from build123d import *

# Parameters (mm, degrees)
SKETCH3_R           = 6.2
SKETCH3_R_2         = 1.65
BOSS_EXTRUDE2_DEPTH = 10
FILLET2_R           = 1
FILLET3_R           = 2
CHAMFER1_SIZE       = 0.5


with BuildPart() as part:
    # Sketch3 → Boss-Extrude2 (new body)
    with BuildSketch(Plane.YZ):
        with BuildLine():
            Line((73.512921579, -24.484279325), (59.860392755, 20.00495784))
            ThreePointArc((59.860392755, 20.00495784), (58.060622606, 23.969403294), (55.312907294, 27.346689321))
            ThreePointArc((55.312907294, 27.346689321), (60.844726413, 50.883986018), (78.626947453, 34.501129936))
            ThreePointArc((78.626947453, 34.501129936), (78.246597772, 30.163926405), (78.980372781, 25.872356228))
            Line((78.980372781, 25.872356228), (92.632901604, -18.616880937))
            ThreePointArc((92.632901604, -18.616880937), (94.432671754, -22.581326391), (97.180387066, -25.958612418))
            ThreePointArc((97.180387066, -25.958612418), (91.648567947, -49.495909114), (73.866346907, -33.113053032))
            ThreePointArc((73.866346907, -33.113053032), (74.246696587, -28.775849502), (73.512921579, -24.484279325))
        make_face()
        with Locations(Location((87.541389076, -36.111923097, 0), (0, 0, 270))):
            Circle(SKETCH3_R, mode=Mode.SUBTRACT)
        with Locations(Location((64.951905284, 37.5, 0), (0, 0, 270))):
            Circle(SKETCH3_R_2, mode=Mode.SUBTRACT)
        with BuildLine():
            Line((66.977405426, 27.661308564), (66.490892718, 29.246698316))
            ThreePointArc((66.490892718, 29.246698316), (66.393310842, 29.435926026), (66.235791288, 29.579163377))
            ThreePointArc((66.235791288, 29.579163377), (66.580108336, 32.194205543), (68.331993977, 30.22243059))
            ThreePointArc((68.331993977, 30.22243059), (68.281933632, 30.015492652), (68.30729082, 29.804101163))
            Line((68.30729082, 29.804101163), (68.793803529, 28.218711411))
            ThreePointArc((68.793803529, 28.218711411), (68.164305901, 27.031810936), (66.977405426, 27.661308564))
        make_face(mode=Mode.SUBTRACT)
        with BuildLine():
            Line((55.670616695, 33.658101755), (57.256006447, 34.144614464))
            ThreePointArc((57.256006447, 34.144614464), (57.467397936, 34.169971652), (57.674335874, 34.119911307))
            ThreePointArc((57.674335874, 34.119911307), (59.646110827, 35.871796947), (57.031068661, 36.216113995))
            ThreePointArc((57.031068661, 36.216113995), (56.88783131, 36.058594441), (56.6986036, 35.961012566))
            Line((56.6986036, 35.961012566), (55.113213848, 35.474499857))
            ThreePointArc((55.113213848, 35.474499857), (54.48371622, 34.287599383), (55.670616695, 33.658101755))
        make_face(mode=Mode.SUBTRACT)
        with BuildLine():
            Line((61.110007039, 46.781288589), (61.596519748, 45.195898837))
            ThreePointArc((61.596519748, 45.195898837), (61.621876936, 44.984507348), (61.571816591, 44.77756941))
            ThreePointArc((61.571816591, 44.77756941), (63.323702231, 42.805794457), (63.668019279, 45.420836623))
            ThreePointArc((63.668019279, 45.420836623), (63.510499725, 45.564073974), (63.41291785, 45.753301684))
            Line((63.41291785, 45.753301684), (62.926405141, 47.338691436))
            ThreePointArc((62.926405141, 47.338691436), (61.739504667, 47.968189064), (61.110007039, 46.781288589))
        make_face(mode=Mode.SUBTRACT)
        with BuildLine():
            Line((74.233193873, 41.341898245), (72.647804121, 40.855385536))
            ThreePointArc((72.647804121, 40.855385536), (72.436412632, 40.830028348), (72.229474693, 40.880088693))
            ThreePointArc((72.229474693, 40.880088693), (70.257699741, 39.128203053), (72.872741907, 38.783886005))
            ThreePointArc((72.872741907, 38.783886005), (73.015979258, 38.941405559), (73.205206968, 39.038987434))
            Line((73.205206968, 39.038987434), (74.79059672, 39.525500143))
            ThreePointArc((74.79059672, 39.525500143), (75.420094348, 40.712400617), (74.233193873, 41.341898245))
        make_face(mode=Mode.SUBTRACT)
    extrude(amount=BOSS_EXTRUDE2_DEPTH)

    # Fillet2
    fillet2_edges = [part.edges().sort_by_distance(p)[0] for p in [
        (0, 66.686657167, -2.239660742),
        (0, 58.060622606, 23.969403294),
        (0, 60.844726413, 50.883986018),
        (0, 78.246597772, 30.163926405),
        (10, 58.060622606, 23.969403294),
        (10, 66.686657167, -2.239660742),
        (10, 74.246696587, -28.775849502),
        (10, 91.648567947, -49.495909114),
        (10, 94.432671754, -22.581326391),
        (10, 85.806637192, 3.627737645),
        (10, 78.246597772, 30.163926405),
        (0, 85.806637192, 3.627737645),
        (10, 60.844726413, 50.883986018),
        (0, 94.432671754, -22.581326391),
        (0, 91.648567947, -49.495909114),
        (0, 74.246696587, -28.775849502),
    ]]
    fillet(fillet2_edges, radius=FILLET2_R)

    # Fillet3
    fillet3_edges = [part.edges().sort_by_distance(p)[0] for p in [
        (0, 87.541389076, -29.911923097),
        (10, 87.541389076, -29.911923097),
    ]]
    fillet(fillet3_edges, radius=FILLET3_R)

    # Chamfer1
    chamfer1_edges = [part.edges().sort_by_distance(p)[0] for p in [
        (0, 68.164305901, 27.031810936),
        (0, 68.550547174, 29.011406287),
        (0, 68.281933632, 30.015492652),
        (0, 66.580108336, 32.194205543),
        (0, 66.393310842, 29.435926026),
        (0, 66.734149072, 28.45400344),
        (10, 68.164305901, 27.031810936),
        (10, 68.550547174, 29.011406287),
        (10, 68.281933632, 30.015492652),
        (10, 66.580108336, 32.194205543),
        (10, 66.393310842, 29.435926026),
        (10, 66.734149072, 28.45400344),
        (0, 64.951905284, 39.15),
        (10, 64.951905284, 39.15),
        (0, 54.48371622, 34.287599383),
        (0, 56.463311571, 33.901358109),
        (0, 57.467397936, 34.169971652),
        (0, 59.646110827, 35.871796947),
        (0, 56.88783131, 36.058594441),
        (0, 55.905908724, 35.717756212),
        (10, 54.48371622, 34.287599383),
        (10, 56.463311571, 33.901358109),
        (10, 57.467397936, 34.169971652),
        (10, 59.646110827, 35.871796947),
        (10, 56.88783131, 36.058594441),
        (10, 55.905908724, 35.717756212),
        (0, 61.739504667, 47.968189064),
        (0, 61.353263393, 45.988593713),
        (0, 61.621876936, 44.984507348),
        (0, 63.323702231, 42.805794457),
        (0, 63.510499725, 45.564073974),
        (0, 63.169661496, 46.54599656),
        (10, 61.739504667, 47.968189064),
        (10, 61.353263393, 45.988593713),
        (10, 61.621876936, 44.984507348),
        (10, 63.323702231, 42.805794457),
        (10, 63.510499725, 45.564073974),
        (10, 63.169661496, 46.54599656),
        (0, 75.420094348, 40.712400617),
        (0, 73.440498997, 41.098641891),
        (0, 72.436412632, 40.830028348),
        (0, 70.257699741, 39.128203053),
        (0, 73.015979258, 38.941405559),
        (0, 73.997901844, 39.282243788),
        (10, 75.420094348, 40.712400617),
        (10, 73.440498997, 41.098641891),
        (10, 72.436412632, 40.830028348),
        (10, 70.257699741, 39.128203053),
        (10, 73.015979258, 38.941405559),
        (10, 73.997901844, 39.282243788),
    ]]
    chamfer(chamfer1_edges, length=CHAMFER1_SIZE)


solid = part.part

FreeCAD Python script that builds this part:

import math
import FreeCAD as App
import Part
import Sketcher
Q = App.Units.Quantity


def edges_at(feature, points):
    """Names of the edges that pass closest to the given points."""
    edges = feature.Shape.Edges
    near = lambda p: min(range(len(edges)), key=lambda i: edges[i].distToShape(Part.Vertex(*p))[0])
    return sorted({f"Edge{near(p) + 1}" for p in points})

doc = App.newDocument("Part")
params = doc.addObject("Spreadsheet::Sheet", "Params")
for row, (alias, value) in enumerate([
    ("sketch1_radius", "17 mm"),
    ("sketch1_radius2", "14 mm"),
    ("sketch1_diameter", "12.4 mm"),
    ("sketch1_diameter2", "3.3 mm"),
    ("sketch1_radius3", "0.6 mm"),
    ("pad1_length", "10 mm"),
    ("fillet_radius", "1 mm"),
    ("fillet2_radius", "2 mm"),
    ("chamfer_size", "0.5 mm"),
], start=1):
    params.set(f"A{row}", alias)
    params.set(f"B{row}", "=" + value)
    params.setAlias(f"B{row}", alias)

body = doc.addObject("PartDesign::Body", "Body")

# Sketch on YZ plane
sketch1 = doc.addObject("Sketcher::SketchObject", "Sketch")
body.addObject(sketch1)
sketch1.AttachmentSupport = (doc.YZ_Plane, [""])
sketch1.MapMode = "FlatFace"
sketch1.addGeometry(Part.LineSegment(App.Vector(59.860393, 20.004958, 0), App.Vector(73.512922, -24.484279, 0)), False)
sketch1.addGeometry(Part.ArcOfCircle(Part.Circle(App.Vector(57.260939, -29.471568, 0), App.Vector(0, 0, 1), 17), math.radians(-12.368891), math.radians(17.059816)), False)
sketch1.addGeometry(Part.ArcOfCircle(Part.Circle(App.Vector(87.541389, -36.111923, 0), App.Vector(0, 0, 1), 14), math.radians(167.631109), math.radians(406.488523)), False)
sketch1.addGeometry(Part.ArcOfCircle(Part.Circle(App.Vector(108.884885, -13.629592, 0), App.Vector(0, 0, 1), 17), math.radians(-162.940184), math.radians(-133.511477)), False)
sketch1.addGeometry(Part.LineSegment(App.Vector(92.632902, -18.616881, 0), App.Vector(78.980373, 25.872356, 0)), False)
sketch1.addGeometry(Part.ArcOfCircle(Part.Circle(App.Vector(95.232356, 30.859645, 0), App.Vector(0, 0, 1), 17), math.radians(167.631109), math.radians(197.059816)), False)
sketch1.addGeometry(Part.ArcOfCircle(Part.Circle(App.Vector(64.951905, 37.5, 0), App.Vector(0, 0, 1), 14), math.radians(-12.368891), math.radians(226.488523)), False)
sketch1.addGeometry(Part.ArcOfCircle(Part.Circle(App.Vector(43.60841, 15.017669, 0), App.Vector(0, 0, 1), 17), math.radians(17.059816), math.radians(46.488523)), False)
sketch1.addGeometry(Part.Circle(App.Vector(87.541389, -36.111923, 0), App.Vector(0, 0, 1), 6.2), False)
sketch1.addGeometry(Part.LineSegment(App.Vector(66.977405, 27.661309, 0), App.Vector(66.490893, 29.246698, 0)), False)
sketch1.addGeometry(Part.ArcOfCircle(Part.Circle(App.Vector(65.917293, 29.070676, 0), App.Vector(0, 0, 1), 0.6), math.radians(17.059817), math.radians(57.938451)), False)
sketch1.addGeometry(Part.ArcOfCircle(Part.Circle(App.Vector(67.005495, 30.808007, 0), App.Vector(0, 0, 1), 1.45), math.radians(-23.818819), math.radians(237.938451)), False)
sketch1.addGeometry(Part.ArcOfCircle(Part.Circle(App.Vector(68.88089, 29.980123, 0), App.Vector(0, 0, 1), 0.6), math.radians(156.181181), math.radians(197.059816)), False)
sketch1.addGeometry(Part.LineSegment(App.Vector(68.307291, 29.804101, 0), App.Vector(68.793804, 28.218711, 0)), False)
sketch1.addGeometry(Part.ArcOfCircle(Part.Circle(App.Vector(67.885604, 27.94001, 0), App.Vector(0, 0, 1), 0.95), math.radians(-162.940184), math.radians(17.059816)), False)
sketch1.addGeometry(Part.ArcOfCircle(Part.Circle(App.Vector(74.511895, 40.433699, 0), App.Vector(0, 0, 1), 0.95), math.radians(-72.940184), math.radians(107.059816)), False)
sketch1.addGeometry(Part.LineSegment(App.Vector(74.790597, 39.5255, 0), App.Vector(73.205207, 39.038987, 0)), False)
sketch1.addGeometry(Part.ArcOfCircle(Part.Circle(App.Vector(73.381229, 38.465388, 0), App.Vector(0, 0, 1), 0.6), math.radians(107.059816), math.radians(147.938452)), False)
sketch1.addGeometry(Part.ArcOfCircle(Part.Circle(App.Vector(71.643898, 39.553589, 0), App.Vector(0, 0, 1), 1.45), math.radians(66.181181), math.radians(327.938451)), False)
sketch1.addGeometry(Part.ArcOfCircle(Part.Circle(App.Vector(72.471782, 41.428985, 0), App.Vector(0, 0, 1), 0.6), math.radians(-113.818819), math.radians(-72.940184)), False)
sketch1.addGeometry(Part.LineSegment(App.Vector(72.647804, 40.855386, 0), App.Vector(74.233194, 41.341898, 0)), False)
sketch1.addGeometry(Part.Circle(App.Vector(64.951905, 37.5, 0), App.Vector(0, 0, 1), 1.65), False)
sketch1.addGeometry(Part.ArcOfCircle(Part.Circle(App.Vector(55.391915, 34.566301, 0), App.Vector(0, 0, 1), 0.95), math.radians(107.059816), math.radians(287.059816)), False)
sketch1.addGeometry(Part.LineSegment(App.Vector(55.113214, 35.4745, 0), App.Vector(56.698604, 35.961013, 0)), False)
sketch1.addGeometry(Part.ArcOfCircle(Part.Circle(App.Vector(56.522582, 36.534612, 0), App.Vector(0, 0, 1), 0.6), math.radians(-72.940184), math.radians(-32.061548)), False)
sketch1.addGeometry(Part.ArcOfCircle(Part.Circle(App.Vector(58.259912, 35.446411, 0), App.Vector(0, 0, 1), 1.45), math.radians(-113.818819), math.radians(147.938451)), False)
sketch1.addGeometry(Part.ArcOfCircle(Part.Circle(App.Vector(57.432028, 33.571015, 0), App.Vector(0, 0, 1), 0.6), math.radians(66.181181), math.radians(107.059816)), False)
sketch1.addGeometry(Part.LineSegment(App.Vector(57.256006, 34.144614, 0), App.Vector(55.670617, 33.658102, 0)), False)
sketch1.addGeometry(Part.ArcOfCircle(Part.Circle(App.Vector(62.018206, 47.05999, 0), App.Vector(0, 0, 1), 0.95), math.radians(17.059816), math.radians(197.059816)), False)
sketch1.addGeometry(Part.LineSegment(App.Vector(62.926405, 47.338691, 0), App.Vector(63.412918, 45.753302, 0)), False)
sketch1.addGeometry(Part.ArcOfCircle(Part.Circle(App.Vector(63.986517, 45.929324, 0), App.Vector(0, 0, 1), 0.6), math.radians(-162.940184), math.radians(-122.061548)), False)
sketch1.addGeometry(Part.ArcOfCircle(Part.Circle(App.Vector(62.898316, 44.191993, 0), App.Vector(0, 0, 1), 1.45), math.radians(156.181181), math.radians(417.938451)), False)
sketch1.addGeometry(Part.ArcOfCircle(Part.Circle(App.Vector(61.02292, 45.019877, 0), App.Vector(0, 0, 1), 0.6), math.radians(-23.818819), math.radians(17.059816)), False)
sketch1.addGeometry(Part.LineSegment(App.Vector(61.59652, 45.195899, 0), App.Vector(61.110007, 46.781289, 0)), False)
sketch1.addConstraint(Sketcher.Constraint("Tangent", 0, 2, 1, 2))
sketch1.addConstraint(Sketcher.Constraint("Tangent", 1, 1, 2, 1))
sketch1.addConstraint(Sketcher.Constraint("Tangent", 2, 2, 3, 2))
sketch1.addConstraint(Sketcher.Constraint("Tangent", 3, 1, 4, 1))
sketch1.addConstraint(Sketcher.Constraint("Tangent", 4, 2, 5, 2))
sketch1.addConstraint(Sketcher.Constraint("Tangent", 5, 1, 6, 1))
sketch1.addConstraint(Sketcher.Constraint("Tangent", 6, 2, 7, 2))
sketch1.addConstraint(Sketcher.Constraint("Tangent", 7, 1, 0, 1))
sketch1.addConstraint(Sketcher.Constraint("Tangent", 9, 2, 10, 1))
sketch1.addConstraint(Sketcher.Constraint("Tangent", 10, 2, 11, 2))
sketch1.addConstraint(Sketcher.Constraint("Tangent", 11, 1, 12, 1))
sketch1.addConstraint(Sketcher.Constraint("Tangent", 12, 2, 13, 1))
sketch1.addConstraint(Sketcher.Constraint("Tangent", 13, 2, 14, 2))
sketch1.addConstraint(Sketcher.Constraint("Tangent", 14, 1, 9, 1))
sketch1.addConstraint(Sketcher.Constraint("Tangent", 15, 1, 16, 1))
sketch1.addConstraint(Sketcher.Constraint("Tangent", 16, 2, 17, 1))
sketch1.addConstraint(Sketcher.Constraint("Tangent", 17, 2, 18, 2))
sketch1.addConstraint(Sketcher.Constraint("Tangent", 18, 1, 19, 1))
sketch1.addConstraint(Sketcher.Constraint("Tangent", 19, 2, 20, 1))
sketch1.addConstraint(Sketcher.Constraint("Tangent", 20, 2, 15, 2))
sketch1.addConstraint(Sketcher.Constraint("Tangent", 22, 1, 23, 1))
sketch1.addConstraint(Sketcher.Constraint("Tangent", 23, 2, 24, 1))
sketch1.addConstraint(Sketcher.Constraint("Tangent", 24, 2, 25, 2))
sketch1.addConstraint(Sketcher.Constraint("Tangent", 25, 1, 26, 1))
sketch1.addConstraint(Sketcher.Constraint("Tangent", 26, 2, 27, 1))
sketch1.addConstraint(Sketcher.Constraint("Tangent", 27, 2, 22, 2))
sketch1.addConstraint(Sketcher.Constraint("Tangent", 28, 1, 29, 1))
sketch1.addConstraint(Sketcher.Constraint("Tangent", 29, 2, 30, 1))
sketch1.addConstraint(Sketcher.Constraint("Tangent", 30, 2, 31, 2))
sketch1.addConstraint(Sketcher.Constraint("Tangent", 31, 1, 32, 1))
sketch1.addConstraint(Sketcher.Constraint("Tangent", 32, 2, 33, 1))
sketch1.addConstraint(Sketcher.Constraint("Tangent", 33, 2, 28, 2))
sketch1.addConstraint(Sketcher.Constraint("Coincident", 8, 3, 2, 3))
sketch1.addConstraint(Sketcher.Constraint("Coincident", 21, 3, 6, 3))
sketch1.addConstraint(Sketcher.Constraint("Equal", 1, 3))
sketch1.addConstraint(Sketcher.Constraint("Equal", 3, 5))
sketch1.addConstraint(Sketcher.Constraint("Equal", 2, 6))
sketch1.addConstraint(Sketcher.Constraint("Equal", 5, 7))
sketch1.addConstraint(Sketcher.Constraint("Equal", 10, 12))
sketch1.addConstraint(Sketcher.Constraint("Equal", 14, 15))
sketch1.addConstraint(Sketcher.Constraint("Equal", 12, 17))
sketch1.addConstraint(Sketcher.Constraint("Equal", 11, 18))
sketch1.addConstraint(Sketcher.Constraint("Equal", 17, 19))
sketch1.addConstraint(Sketcher.Constraint("Equal", 15, 22))
sketch1.addConstraint(Sketcher.Constraint("Equal", 19, 24))
sketch1.addConstraint(Sketcher.Constraint("Equal", 18, 25))
sketch1.addConstraint(Sketcher.Constraint("Equal", 24, 26))
sketch1.addConstraint(Sketcher.Constraint("Equal", 22, 28))
sketch1.addConstraint(Sketcher.Constraint("Equal", 26, 30))
sketch1.addConstraint(Sketcher.Constraint("Equal", 25, 31))
sketch1.addConstraint(Sketcher.Constraint("Equal", 30, 32))
sketch1.addConstraint(Sketcher.Constraint("Parallel", 0, 4))
sketch1.addConstraint(Sketcher.Constraint("Parallel", 4, 9))
sketch1.addConstraint(Sketcher.Constraint("Parallel", 9, 13))
sketch1.addConstraint(Sketcher.Constraint("Perpendicular", 13, 16))
sketch1.addConstraint(Sketcher.Constraint("Parallel", 16, 20))
sketch1.addConstraint(Sketcher.Constraint("Parallel", 20, 23))
sketch1.addConstraint(Sketcher.Constraint("Parallel", 23, 27))
sketch1.addConstraint(Sketcher.Constraint("Perpendicular", 27, 29))
sketch1.addConstraint(Sketcher.Constraint("Parallel", 29, 33))
sketch1.addConstraint(Sketcher.Constraint("Equal", 0, 4))
sketch1.addConstraint(Sketcher.Constraint("Equal", 9, 13))
sketch1.addConstraint(Sketcher.Constraint("Equal", 13, 16))
sketch1.addConstraint(Sketcher.Constraint("Equal", 16, 20))
sketch1.addConstraint(Sketcher.Constraint("Equal", 20, 23))
sketch1.addConstraint(Sketcher.Constraint("Equal", 23, 27))
sketch1.addConstraint(Sketcher.Constraint("Equal", 27, 29))
sketch1.addConstraint(Sketcher.Constraint("Equal", 29, 33))
sketch1.addConstraint(Sketcher.Constraint("Radius", 1, Q("17 mm")))
sketch1.addConstraint(Sketcher.Constraint("Radius", 2, Q("14 mm")))
sketch1.addConstraint(Sketcher.Constraint("Diameter", 8, Q("12.4 mm")))
sketch1.addConstraint(Sketcher.Constraint("Diameter", 21, Q("3.3 mm")))
sketch1.addConstraint(Sketcher.Constraint("Radius", 10, Q("0.6 mm")))
sketch1.addConstraint(Sketcher.Constraint("Radius", 11, Q("1.45 mm")))
sketch1.addConstraint(Sketcher.Constraint("Radius", 14, Q("0.95 mm")))
sketch1.addConstraint(Sketcher.Constraint("DistanceY", -1, 1, 6, 3, Q("37.5 mm")))
sketch1.addConstraint(Sketcher.Constraint("DistanceY", -1, 1, 15, 3, Q("40.433699 mm")))
sketch1.addConstraint(Sketcher.Constraint("DistanceX", -1, 1, 18, 3, Q("71.643898 mm")))
sketch1.addConstraint(Sketcher.Constraint("DistanceY", -1, 1, 22, 3, Q("34.566301 mm")))
sketch1.addConstraint(Sketcher.Constraint("DistanceX", -1, 1, 3, 1, Q("92.632902 mm")))
sketch1.addConstraint(Sketcher.Constraint("DistanceY", -1, 1, 9, 2, Q("29.246698 mm")))
sketch1.addConstraint(Sketcher.Constraint("DistanceY", -1, 1, 12, 2, Q("29.804101 mm")))
sketch1.addConstraint(Sketcher.Constraint("DistanceY", -1, 1, 29, 2, Q("45.753302 mm")))
sketch1.addConstraint(Sketcher.Constraint("DistanceY", 3, 3, 11, 3, Q("44.437599 mm")))
sketch1.addConstraint(Sketcher.Constraint("DistanceX", 6, 3, 14, 3, Q("2.933699 mm")))
sketch1.addConstraint(Sketcher.Constraint("DistanceX", 11, 3, 15, 3, Q("7.506401 mm")))
sketch1.addConstraint(Sketcher.Constraint("DistanceX", 28, 3, 6, 3, Q("2.933699 mm")))
sketch1.addConstraint(Sketcher.Constraint("DistanceY", 18, 3, 28, 3, Q("7.506401 mm")))
sketch1.addConstraint(Sketcher.Constraint("DistanceY", 0, 2, 3, 1, Q("5.867398 mm")))
sketch1.addConstraint(Sketcher.Constraint("DistanceX", -1, 1, 24, 3, Q("56.522582 mm")))
sketch1.setExpression("Constraints[68]", "Params.sketch1_radius")
sketch1.setExpression("Constraints[69]", "Params.sketch1_radius2")
sketch1.setExpression("Constraints[70]", "Params.sketch1_diameter")
sketch1.setExpression("Constraints[71]", "Params.sketch1_diameter2")
sketch1.setExpression("Constraints[72]", "Params.sketch1_radius3")
pad1 = doc.addObject("PartDesign::Pad", "Pad")
body.addObject(pad1)
pad1.Profile = sketch1
pad1.setExpression("Length", "Params.pad1_length")
doc.recompute()

fillet = doc.addObject("PartDesign::Fillet", "Fillet")
body.addObject(fillet)
fillet.Base = (pad1, edges_at(pad1, [
    (0, 66.687, -2.24),
    (0, 58.061, 23.969),
    (0, 60.845, 50.884),
    (0, 78.247, 30.164),
    (10, 58.061, 23.969),
    (10, 66.687, -2.24),
    (10, 74.247, -28.776),
    (10, 91.649, -49.496),
    (10, 94.433, -22.581),
    (10, 85.807, 3.628),
    (10, 78.247, 30.164),
    (0, 85.807, 3.628),
    (10, 60.845, 50.884),
    (0, 94.433, -22.581),
    (0, 91.649, -49.496),
    (0, 74.247, -28.776),
]))
fillet.setExpression("Radius", "Params.fillet_radius")
doc.recompute()

fillet2 = doc.addObject("PartDesign::Fillet", "Fillet001")
body.addObject(fillet2)
fillet2.Base = (fillet, edges_at(fillet, [(0, 87.541, -29.912), (10, 87.541, -29.912)]))
fillet2.setExpression("Radius", "Params.fillet2_radius")
doc.recompute()

chamfer = doc.addObject("PartDesign::Chamfer", "Chamfer")
body.addObject(chamfer)
chamfer.Base = (fillet2, edges_at(fillet2, [
    (0, 68.164, 27.032),
    (0, 68.551, 29.011),
    (0, 68.282, 30.015),
    (0, 66.58, 32.194),
    (0, 66.393, 29.436),
    (0, 66.734, 28.454),
    (10, 68.164, 27.032),
    (10, 68.551, 29.011),
    (10, 68.282, 30.015),
    (10, 66.58, 32.194),
    (10, 66.393, 29.436),
    (10, 66.734, 28.454),
    (0, 64.952, 39.15),
    (10, 64.952, 39.15),
    (0, 54.484, 34.288),
    (0, 56.463, 33.901),
    (0, 57.467, 34.17),
    (0, 59.646, 35.872),
    (0, 56.888, 36.059),
    (0, 55.906, 35.718),
    (10, 54.484, 34.288),
    (10, 56.463, 33.901),
    (10, 57.467, 34.17),
    (10, 59.646, 35.872),
    (10, 56.888, 36.059),
    (10, 55.906, 35.718),
    (0, 61.74, 47.968),
    (0, 61.353, 45.989),
    (0, 61.622, 44.985),
    (0, 63.324, 42.806),
    (0, 63.51, 45.564),
    (0, 63.17, 46.546),
    (10, 61.74, 47.968),
    (10, 61.353, 45.989),
    (10, 61.622, 44.985),
    (10, 63.324, 42.806),
    (10, 63.51, 45.564),
    (10, 63.17, 46.546),
    (0, 75.42, 40.712),
    (0, 73.44, 41.099),
    (0, 72.436, 40.83),
    (0, 70.258, 39.128),
    (0, 73.016, 38.941),
    (0, 73.998, 39.282),
    (10, 75.42, 40.712),
    (10, 73.44, 41.099),
    (10, 72.436, 40.83),
    (10, 70.258, 39.128),
    (10, 73.016, 38.941),
    (10, 73.998, 39.282),
]))
chamfer.setExpression("Size", "Params.chamfer_size")

doc.recompute()
